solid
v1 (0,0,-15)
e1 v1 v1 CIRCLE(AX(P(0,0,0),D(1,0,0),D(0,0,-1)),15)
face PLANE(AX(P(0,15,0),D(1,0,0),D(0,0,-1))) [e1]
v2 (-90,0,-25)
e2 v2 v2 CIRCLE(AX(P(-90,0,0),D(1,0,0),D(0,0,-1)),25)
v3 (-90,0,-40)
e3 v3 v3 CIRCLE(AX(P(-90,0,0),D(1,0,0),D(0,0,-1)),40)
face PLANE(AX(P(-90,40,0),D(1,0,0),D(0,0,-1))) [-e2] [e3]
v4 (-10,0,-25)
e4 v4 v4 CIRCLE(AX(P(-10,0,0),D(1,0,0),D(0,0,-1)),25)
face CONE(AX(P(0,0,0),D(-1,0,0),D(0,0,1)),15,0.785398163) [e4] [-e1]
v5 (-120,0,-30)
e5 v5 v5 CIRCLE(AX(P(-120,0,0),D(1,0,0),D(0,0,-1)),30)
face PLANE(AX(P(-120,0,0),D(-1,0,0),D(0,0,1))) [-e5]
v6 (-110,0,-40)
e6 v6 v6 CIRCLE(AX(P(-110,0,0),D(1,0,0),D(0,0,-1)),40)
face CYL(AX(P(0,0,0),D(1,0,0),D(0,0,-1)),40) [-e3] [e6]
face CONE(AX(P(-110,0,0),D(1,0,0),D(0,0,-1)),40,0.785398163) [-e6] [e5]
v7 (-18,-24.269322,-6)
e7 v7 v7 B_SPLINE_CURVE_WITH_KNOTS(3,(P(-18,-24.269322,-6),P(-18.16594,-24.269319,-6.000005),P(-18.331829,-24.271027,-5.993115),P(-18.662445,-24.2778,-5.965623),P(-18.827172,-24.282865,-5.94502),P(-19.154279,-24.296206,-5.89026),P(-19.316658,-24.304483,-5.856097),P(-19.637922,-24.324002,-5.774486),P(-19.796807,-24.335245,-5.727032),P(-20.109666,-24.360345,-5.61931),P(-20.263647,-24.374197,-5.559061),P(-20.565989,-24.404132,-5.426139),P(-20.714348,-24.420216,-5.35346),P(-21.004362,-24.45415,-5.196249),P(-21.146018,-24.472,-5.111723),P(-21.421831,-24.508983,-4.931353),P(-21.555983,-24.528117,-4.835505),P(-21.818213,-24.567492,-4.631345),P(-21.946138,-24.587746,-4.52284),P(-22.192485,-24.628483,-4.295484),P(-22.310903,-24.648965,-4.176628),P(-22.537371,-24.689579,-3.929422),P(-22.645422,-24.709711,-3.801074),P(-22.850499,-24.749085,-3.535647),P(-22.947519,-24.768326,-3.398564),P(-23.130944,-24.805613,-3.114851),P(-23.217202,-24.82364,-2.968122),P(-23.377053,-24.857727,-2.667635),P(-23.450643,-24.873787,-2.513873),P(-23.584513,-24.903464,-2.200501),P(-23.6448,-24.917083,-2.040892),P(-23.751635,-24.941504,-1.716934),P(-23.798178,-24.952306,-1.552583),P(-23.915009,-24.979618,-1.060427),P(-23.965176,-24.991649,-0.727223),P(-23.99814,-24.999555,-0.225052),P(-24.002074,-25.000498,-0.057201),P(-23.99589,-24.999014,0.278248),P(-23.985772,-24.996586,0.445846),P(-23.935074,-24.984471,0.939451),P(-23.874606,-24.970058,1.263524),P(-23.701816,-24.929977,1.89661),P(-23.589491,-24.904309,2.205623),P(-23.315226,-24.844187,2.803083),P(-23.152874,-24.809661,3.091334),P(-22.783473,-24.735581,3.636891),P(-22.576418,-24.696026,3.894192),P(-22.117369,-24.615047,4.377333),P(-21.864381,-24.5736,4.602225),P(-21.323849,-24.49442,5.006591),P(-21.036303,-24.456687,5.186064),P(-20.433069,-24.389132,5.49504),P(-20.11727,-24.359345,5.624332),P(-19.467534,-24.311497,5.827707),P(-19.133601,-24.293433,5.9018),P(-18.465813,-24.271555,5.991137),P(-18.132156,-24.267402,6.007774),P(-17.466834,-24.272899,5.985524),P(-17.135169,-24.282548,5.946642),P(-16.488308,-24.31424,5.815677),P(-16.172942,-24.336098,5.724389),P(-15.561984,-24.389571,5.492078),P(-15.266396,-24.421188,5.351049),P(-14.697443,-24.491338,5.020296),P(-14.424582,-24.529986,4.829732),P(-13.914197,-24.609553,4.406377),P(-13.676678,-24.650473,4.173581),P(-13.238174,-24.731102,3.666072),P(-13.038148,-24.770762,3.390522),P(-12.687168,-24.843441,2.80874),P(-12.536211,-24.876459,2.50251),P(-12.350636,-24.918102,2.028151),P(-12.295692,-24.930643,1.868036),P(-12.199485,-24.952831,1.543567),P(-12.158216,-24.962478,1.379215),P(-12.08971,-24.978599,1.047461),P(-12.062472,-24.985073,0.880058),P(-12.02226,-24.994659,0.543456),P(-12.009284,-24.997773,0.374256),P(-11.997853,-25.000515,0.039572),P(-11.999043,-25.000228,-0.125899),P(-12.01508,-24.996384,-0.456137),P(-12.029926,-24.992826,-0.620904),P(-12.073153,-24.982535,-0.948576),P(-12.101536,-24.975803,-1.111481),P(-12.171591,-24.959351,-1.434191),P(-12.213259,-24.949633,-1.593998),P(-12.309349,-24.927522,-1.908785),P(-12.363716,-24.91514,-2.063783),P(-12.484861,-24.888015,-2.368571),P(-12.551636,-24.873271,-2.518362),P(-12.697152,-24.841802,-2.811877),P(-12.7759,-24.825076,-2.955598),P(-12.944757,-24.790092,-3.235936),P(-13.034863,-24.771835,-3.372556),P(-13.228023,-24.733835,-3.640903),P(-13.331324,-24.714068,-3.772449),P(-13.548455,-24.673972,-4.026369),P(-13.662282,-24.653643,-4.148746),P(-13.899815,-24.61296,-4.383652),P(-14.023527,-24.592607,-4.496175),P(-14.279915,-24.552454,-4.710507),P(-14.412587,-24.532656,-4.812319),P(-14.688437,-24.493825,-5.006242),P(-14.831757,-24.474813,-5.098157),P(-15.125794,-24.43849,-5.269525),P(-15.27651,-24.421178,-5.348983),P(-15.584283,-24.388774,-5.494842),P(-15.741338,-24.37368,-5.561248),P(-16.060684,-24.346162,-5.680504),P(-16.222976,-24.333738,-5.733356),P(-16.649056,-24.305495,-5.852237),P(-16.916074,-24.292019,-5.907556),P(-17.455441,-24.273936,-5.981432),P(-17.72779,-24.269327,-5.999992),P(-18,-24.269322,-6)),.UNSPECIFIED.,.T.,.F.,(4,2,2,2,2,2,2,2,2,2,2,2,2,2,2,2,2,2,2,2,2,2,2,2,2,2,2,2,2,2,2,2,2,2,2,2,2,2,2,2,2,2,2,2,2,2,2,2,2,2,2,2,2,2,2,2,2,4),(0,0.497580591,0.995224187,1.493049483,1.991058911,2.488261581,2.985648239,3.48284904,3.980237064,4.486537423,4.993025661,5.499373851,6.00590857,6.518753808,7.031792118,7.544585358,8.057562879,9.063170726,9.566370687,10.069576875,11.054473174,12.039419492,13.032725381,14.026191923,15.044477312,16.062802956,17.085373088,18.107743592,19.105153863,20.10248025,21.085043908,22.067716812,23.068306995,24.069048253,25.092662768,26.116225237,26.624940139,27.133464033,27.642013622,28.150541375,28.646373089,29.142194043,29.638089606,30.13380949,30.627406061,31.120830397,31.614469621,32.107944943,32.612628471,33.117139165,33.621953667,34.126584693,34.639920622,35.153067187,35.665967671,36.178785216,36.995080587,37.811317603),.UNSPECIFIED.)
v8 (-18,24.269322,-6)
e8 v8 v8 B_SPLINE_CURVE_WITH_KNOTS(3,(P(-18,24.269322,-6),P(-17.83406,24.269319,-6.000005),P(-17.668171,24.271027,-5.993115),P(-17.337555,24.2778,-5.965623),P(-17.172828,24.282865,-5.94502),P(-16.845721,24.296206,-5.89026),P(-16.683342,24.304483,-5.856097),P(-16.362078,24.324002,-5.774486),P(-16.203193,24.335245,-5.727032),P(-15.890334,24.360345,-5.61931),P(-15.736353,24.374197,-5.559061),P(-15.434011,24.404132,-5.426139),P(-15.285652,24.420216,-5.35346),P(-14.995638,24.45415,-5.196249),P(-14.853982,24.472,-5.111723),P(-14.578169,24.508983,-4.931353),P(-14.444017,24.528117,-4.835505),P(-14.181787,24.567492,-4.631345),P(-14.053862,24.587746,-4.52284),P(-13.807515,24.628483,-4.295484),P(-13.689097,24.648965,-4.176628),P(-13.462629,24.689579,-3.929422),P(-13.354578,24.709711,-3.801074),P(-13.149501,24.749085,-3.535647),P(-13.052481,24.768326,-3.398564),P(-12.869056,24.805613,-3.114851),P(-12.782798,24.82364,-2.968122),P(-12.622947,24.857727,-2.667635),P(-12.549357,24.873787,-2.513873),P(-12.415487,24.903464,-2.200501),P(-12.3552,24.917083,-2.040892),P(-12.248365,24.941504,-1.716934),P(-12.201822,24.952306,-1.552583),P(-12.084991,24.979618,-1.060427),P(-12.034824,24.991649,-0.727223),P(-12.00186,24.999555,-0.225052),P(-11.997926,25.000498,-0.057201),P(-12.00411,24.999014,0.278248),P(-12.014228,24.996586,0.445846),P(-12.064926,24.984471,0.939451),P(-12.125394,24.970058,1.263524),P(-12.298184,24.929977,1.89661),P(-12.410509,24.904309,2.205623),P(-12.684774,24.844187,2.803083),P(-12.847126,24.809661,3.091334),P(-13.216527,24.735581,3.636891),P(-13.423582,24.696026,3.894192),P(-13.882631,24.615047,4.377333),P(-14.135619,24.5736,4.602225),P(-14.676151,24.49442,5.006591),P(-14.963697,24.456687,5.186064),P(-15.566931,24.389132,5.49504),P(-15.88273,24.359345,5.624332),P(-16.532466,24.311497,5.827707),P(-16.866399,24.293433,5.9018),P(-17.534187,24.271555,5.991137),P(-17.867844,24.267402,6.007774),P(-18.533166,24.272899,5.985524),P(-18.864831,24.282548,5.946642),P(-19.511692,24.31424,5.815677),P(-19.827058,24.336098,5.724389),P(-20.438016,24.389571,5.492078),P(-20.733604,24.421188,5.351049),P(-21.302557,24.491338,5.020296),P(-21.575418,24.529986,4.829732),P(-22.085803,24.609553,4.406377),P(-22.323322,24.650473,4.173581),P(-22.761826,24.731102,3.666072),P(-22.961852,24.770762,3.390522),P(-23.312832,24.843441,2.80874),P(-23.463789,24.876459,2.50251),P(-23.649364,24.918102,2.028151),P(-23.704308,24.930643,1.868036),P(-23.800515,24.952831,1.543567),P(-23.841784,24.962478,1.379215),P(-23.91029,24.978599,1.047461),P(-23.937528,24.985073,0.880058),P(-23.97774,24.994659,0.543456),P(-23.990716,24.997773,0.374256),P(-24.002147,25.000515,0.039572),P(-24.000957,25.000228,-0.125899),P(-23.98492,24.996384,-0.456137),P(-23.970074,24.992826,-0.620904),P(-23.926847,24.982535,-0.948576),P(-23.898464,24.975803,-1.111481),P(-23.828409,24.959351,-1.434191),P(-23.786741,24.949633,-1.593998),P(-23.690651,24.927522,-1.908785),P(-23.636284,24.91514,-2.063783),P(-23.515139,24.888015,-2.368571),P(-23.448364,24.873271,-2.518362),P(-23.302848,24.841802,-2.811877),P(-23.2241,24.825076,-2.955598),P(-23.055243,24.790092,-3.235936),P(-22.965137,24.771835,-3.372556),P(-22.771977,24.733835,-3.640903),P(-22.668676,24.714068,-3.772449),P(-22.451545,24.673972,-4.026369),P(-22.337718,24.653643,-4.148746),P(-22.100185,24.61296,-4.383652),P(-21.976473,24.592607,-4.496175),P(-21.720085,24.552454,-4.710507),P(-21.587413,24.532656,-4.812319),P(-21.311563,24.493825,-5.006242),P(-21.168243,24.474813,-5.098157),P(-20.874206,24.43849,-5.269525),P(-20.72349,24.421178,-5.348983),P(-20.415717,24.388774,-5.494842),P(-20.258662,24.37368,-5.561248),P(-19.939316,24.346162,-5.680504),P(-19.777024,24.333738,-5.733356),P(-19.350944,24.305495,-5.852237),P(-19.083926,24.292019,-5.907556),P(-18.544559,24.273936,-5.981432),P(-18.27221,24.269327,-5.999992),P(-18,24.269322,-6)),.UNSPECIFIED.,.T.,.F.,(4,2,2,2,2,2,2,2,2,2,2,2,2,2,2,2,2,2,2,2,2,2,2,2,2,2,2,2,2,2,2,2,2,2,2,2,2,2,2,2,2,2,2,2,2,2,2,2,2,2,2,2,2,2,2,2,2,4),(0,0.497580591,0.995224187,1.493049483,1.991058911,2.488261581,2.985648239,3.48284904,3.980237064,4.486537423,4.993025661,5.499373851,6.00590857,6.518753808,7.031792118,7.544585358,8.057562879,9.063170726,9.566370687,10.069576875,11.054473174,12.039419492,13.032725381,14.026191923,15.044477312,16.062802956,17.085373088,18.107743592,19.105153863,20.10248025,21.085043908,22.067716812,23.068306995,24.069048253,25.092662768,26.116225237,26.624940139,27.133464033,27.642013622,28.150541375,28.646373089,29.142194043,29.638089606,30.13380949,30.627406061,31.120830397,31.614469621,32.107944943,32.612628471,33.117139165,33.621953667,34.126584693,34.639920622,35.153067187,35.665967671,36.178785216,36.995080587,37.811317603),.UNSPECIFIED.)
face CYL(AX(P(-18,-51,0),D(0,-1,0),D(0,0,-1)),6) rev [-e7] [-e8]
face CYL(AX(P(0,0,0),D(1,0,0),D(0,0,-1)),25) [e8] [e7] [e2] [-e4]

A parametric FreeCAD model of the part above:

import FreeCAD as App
import Part
import Sketcher

V = App.Vector


def add_polygon(sketch, points):
    """Adds a closed chain of lines whose ends are joined by coincident constraints."""
    first, n = sketch.GeometryCount, len(points)
    for a, b in zip(points, points[1:] + points[:1]):
        sketch.addGeometry(Part.LineSegment(App.Vector(*a, 0), App.Vector(*b, 0)), False)
    for i in range(n):
        sketch.addConstraint(Sketcher.Constraint("Coincident", first + i, 2, first + (i + 1) % n, 1))

doc = App.newDocument("Part")
body = doc.addObject("PartDesign::Body", "Body")

sketch1 = body.newObject("Sketcher::SketchObject", "Sketch")
sketch1.AttachmentSupport = (doc.getObject("XY_Plane"), [""])
sketch1.MapMode = "FlatFace"
add_polygon(sketch1, [(-120, 0), (0, 0), (0, 15), (-10, 25), (-90, 25), (-90, 40), (-110, 40), (-120, 30)])
sketch1.addConstraint([
    Sketcher.Constraint("Horizontal", 0),
    Sketcher.Constraint("Vertical", 1),
    Sketcher.Constraint("Horizontal", 3),
    Sketcher.Constraint("Vertical", 4),
    Sketcher.Constraint("Horizontal", 5),
    Sketcher.Constraint("Vertical", 7),
    Sketcher.Constraint("Coincident", 0, 2, -1, 1),
    Sketcher.Constraint("Perpendicular", 2, 6),
    Sketcher.Constraint("Equal", 1, 4),
    Sketcher.Constraint("Equal", 2, 6),
    Sketcher.Constraint("DistanceX", 0, 1, 0, 2, 120.0),
    Sketcher.Constraint("DistanceX", 3, 2, 3, 1, 80.0),
    Sketcher.Constraint("DistanceX", 5, 2, 5, 1, 20.0),
    Sketcher.Constraint("DistanceY", 1, 1, 1, 2, 15.0),
    Sketcher.Constraint("DistanceY", 7, 2, 7, 1, 30.0),
])
revolution = body.newObject("PartDesign::Revolution", "Revolution")
revolution.Profile = sketch1
revolution.ReferenceAxis = (sketch1, ["H_Axis"])
revolution.Angle = 360

sketch2 = body.newObject("Sketcher::SketchObject", "Sketch001")
sketch2.AttachmentSupport = (doc.getObject("XY_Plane"), [""])
sketch2.MapMode = "FlatFace"
add_polygon(sketch2, [(-24, 33), (-24, -51), (-18, -51), (-18, 33)])
sketch2.addGeometry(Part.LineSegment(V(-18, -51, 0), V(-18, 33, 0)), True)
sketch2.addConstraint([
    Sketcher.Constraint("Vertical", 0),
    Sketcher.Constraint("Horizontal", 1),
    Sketcher.Constraint("Vertical", 2),
    Sketcher.Constraint("Horizontal", 3),
    Sketcher.Constraint("Vertical", 4),
    Sketcher.Constraint("Coincident", 4, 1, 1, 2),
    Sketcher.Constraint("Horizontal", 3, 2, 4, 2),
    Sketcher.Constraint("DistanceX", 1, 1, 1, 2, 6.0),
    Sketcher.Constraint("DistanceY", 0, 2, 0, 1, 84.0),
    Sketcher.Constraint("DistanceX", 0, 2, -1, 1, 24.0),
    Sketcher.Constraint("DistanceY", 0, 2, -1, 1, 51.0),
])
groove = body.newObject("PartDesign::Groove", "Groove")
groove.Profile = sketch2
groove.ReferenceAxis = (sketch2, ["Axis0"])
groove.Angle = 360

doc.recompute()
